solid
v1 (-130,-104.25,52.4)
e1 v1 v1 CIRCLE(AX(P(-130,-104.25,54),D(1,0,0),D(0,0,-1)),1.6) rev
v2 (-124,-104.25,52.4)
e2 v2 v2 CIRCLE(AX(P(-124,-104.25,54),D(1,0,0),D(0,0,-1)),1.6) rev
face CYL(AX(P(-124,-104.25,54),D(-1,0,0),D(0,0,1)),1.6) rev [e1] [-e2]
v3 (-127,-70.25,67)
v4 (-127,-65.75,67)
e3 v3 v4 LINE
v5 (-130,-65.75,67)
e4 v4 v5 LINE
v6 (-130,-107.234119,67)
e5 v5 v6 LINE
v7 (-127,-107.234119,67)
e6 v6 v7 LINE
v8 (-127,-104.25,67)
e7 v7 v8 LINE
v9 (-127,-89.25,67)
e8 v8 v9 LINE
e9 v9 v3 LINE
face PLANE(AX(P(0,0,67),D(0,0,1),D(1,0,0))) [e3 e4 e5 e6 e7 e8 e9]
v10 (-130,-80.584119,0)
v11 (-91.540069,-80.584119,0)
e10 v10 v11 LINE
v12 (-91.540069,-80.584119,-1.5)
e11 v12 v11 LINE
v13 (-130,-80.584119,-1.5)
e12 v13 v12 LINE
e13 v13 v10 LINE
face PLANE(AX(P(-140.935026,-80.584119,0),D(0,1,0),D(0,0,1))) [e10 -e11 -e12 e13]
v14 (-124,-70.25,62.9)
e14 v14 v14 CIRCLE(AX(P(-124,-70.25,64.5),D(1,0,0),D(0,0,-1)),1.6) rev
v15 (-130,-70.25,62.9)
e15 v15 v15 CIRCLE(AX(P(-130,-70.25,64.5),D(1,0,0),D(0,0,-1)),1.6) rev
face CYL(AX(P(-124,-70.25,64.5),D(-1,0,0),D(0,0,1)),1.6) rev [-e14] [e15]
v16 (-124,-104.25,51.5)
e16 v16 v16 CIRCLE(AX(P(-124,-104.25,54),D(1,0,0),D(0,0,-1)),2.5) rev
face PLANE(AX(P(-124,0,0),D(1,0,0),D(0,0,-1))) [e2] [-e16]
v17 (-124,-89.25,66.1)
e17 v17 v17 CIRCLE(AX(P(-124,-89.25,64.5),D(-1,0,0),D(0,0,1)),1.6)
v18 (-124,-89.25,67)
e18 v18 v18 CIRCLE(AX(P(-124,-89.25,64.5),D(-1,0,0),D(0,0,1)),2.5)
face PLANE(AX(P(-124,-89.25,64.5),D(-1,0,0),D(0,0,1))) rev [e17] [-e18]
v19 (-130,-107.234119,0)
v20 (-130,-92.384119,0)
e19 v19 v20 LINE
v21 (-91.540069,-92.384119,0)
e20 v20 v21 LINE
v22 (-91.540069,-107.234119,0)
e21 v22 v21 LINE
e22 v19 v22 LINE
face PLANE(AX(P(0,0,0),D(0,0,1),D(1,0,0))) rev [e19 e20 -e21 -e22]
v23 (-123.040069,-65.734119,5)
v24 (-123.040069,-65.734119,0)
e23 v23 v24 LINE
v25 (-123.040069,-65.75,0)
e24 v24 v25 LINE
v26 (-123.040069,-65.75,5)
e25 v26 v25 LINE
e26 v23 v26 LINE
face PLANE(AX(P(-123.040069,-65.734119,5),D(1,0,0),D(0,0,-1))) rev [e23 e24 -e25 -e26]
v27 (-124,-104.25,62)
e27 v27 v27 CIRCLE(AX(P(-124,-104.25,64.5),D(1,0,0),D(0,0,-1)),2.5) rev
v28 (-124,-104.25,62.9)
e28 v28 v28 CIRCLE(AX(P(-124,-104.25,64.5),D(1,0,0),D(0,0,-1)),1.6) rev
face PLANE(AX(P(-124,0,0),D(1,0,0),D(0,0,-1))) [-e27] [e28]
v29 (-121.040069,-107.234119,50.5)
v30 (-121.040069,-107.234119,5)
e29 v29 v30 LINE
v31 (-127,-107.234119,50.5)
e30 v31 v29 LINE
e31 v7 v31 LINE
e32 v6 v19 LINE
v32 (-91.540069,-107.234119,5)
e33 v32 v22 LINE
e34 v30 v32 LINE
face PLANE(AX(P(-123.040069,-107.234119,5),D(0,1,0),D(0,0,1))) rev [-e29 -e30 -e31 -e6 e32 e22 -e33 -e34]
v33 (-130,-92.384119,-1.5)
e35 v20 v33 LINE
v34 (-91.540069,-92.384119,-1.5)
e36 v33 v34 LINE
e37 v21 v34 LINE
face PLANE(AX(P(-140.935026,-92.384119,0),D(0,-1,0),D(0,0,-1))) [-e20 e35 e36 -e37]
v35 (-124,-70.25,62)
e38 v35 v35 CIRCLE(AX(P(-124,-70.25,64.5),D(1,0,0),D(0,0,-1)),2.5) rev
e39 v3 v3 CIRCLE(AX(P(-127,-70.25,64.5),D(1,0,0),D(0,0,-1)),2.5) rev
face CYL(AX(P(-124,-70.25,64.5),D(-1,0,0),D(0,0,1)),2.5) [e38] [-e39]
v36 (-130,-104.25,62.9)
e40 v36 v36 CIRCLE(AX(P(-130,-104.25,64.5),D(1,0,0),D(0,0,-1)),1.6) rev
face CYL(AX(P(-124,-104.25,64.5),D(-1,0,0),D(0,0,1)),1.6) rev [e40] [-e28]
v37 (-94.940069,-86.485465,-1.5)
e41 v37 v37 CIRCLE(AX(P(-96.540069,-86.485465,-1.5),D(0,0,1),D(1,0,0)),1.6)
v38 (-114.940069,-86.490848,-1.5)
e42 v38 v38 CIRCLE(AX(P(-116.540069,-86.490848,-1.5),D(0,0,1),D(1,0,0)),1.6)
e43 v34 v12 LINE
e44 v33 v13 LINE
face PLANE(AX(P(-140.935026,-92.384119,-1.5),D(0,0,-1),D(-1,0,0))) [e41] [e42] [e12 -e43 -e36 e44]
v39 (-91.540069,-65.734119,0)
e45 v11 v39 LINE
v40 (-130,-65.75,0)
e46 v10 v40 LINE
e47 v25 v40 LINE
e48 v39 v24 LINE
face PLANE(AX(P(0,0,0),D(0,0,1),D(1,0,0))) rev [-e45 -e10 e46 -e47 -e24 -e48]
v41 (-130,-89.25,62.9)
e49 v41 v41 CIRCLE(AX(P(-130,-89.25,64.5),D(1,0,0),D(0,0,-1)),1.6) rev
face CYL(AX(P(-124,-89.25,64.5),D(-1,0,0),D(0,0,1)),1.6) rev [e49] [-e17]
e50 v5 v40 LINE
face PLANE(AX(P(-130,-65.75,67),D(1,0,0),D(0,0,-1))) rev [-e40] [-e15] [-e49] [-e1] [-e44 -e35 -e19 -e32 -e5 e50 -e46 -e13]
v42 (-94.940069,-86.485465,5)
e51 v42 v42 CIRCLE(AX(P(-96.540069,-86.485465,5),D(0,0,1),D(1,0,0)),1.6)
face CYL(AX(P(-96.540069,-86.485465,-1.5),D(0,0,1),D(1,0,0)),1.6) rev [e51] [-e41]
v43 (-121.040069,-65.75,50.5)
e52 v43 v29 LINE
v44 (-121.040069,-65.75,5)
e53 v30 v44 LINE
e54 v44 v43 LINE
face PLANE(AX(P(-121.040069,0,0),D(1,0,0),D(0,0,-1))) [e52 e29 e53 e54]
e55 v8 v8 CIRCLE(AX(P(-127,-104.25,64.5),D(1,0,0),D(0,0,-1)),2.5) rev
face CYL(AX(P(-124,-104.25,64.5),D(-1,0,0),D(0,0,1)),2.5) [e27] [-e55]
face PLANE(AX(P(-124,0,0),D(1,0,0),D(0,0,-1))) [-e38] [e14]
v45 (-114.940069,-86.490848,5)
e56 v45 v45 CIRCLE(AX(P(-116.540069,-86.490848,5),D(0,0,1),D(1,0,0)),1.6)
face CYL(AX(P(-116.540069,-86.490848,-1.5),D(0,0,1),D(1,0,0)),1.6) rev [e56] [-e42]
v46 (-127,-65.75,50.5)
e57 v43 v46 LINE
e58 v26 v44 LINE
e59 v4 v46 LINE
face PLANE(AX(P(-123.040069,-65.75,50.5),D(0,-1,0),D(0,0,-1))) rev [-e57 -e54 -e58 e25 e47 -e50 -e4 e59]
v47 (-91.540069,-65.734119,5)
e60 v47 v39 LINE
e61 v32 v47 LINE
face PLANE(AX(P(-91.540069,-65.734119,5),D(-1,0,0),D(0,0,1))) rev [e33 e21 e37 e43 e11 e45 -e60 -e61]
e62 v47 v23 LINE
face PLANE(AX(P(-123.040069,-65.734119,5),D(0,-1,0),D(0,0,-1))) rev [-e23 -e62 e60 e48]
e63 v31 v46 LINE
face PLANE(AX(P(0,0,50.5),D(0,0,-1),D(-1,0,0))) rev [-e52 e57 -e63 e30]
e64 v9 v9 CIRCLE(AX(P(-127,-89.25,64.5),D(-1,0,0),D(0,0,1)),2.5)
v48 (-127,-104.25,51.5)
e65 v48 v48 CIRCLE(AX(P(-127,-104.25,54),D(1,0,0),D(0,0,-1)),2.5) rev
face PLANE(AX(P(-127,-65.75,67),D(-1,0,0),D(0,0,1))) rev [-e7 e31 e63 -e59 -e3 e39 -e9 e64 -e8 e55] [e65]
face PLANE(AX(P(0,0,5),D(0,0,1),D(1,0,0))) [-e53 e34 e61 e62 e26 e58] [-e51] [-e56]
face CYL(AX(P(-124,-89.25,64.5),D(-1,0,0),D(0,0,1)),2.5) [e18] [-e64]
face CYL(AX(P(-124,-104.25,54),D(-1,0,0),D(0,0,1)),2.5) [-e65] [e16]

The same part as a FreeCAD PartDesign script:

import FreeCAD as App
import Part
import Sketcher
Q = App.Units.Quantity


def add_polygon(sketch, points):
    """Adds a closed chain of lines whose ends are joined by coincident constraints."""
    first, n = sketch.GeometryCount, len(points)
    for a, b in zip(points, points[1:] + points[:1]):
        sketch.addGeometry(Part.LineSegment(App.Vector(*a, 0), App.Vector(*b, 0)), False)
    for i in range(n):
        sketch.addConstraint(Sketcher.Constraint("Coincident", first + i, 2, first + (i + 1) % n, 1))

doc = App.newDocument("Part")
params = doc.addObject("Spreadsheet::Sheet", "Params")
for row, (alias, value) in enumerate([
    ("sketch1_width", "31.5 mm"),
    ("sketch1_height", "41.5 mm"),
    ("pad1_length", "5 mm"),
    ("sketch2_width", "6 mm"),
    ("pad2_length", "50.5 mm"),
    ("sketch3_width", "3 mm"),
    ("pad3_length", "16.5 mm"),
    ("sketch4_height", "50.5 mm"),
    ("pad4_length", "2 mm"),
    ("sketch5_diameter", "5 mm"),
    ("sketch5_diameter2", "3.2 mm"),
    ("pad5_length", "3 mm"),
    ("sketch6_diameter", "3.2 mm"),
    ("sketch7_width", "11.8 mm"),
    ("sketch7_height", "1.5 mm"),
    ("pad6_length", "37.5 mm"),
    ("sketch8_diameter", "3.2 mm"),
    ("sketch9_width", "11.8 mm"),
    ("sketch9_height", "50.5 mm"),
    ("sketch9_height2", "1.5 mm"),
    ("sketch9_width2", "14.85 mm"),
    ("pad7_length", "0.959931 mm"),
], start=1):
    params.set(f"A{row}", alias)
    params.set(f"B{row}", "=" + value)
    params.setAlias(f"B{row}", alias)

body = doc.addObject("PartDesign::Body", "Body")

# Sketch on XY plane
sketch1 = body.newObject("Sketcher::SketchObject", "Sketch")
sketch1.AttachmentSupport = (doc.getObject("XY_Plane"), [""])
sketch1.MapMode = "FlatFace"
add_polygon(sketch1, [(-123.040069, -65.734119), (-123.040069, -107.234119), (-91.540069, -107.234119), (-91.540069, -65.734119)])  # lines 0-3
sketch1.addConstraint([
    Sketcher.Constraint("Vertical", 0),
    Sketcher.Constraint("Horizontal", 1),
    Sketcher.Constraint("Vertical", 2),
    Sketcher.Constraint("Horizontal", 3),
    Sketcher.Constraint("DistanceX", 1, 1, 1, 2, Q("31.5 mm")),
    Sketcher.Constraint("DistanceY", 0, 2, 0, 1, Q("41.5 mm")),
    Sketcher.Constraint("DistanceX", 0, 2, -1, 1, Q("123.040069 mm")),
    Sketcher.Constraint("DistanceY", 0, 2, -1, 1, Q("107.234119 mm")),
])
sketch1.setExpression("Constraints[8]", "Params.sketch1_width")
sketch1.setExpression("Constraints[9]", "Params.sketch1_height")
pad1 = body.newObject("PartDesign::Pad", "Pad")
pad1.Profile = sketch1
pad1.setExpression("Length", "Params.pad1_length")

# Sketch on XY plane
sketch2 = body.newObject("Sketcher::SketchObject", "Sketch001")
sketch2.AttachmentSupport = (doc.getObject("XY_Plane"), [""])
sketch2.MapMode = "FlatFace"
add_polygon(sketch2, [(-129.040069, -65.75), (-129.040069, -107.234119), (-123.040069, -107.234119), (-123.040069, -65.75)])  # lines 0-3
sketch2.addConstraint([
    Sketcher.Constraint("Vertical", 0),
    Sketcher.Constraint("Horizontal", 1),
    Sketcher.Constraint("Vertical", 2),
    Sketcher.Constraint("Horizontal", 3),
    Sketcher.Constraint("DistanceX", 1, 1, 1, 2, Q("6 mm")),
    Sketcher.Constraint("DistanceY", 2, 2, -1, 1, Q("65.75 mm")),
    Sketcher.Constraint("DistanceY", 0, 2, 0, 1, Q("41.484119 mm")),
    Sketcher.Constraint("DistanceX", 0, 2, -1, 1, Q("129.040069 mm")),
])
sketch2.setExpression("Constraints[8]", "Params.sketch2_width")
pad2 = body.newObject("PartDesign::Pad", "Pad001")
pad2.Profile = sketch2
pad2.setExpression("Length", "Params.pad2_length")

# Sketch on XY plane
sketch3 = body.newObject("Sketcher::SketchObject", "Sketch002")
sketch3.AttachmentSupport = (doc.getObject("XY_Plane"), [""])
sketch3.MapMode = "FlatFace"
sketch3.AttachmentOffset = App.Placement(App.Vector(0, 0, 50.5), App.Rotation())
add_polygon(sketch3, [(-130, -65.75), (-130, -107.234119), (-127, -107.234119), (-127, -65.75)])  # lines 0-3
sketch3.addConstraint([
    Sketcher.Constraint("Vertical", 0),
    Sketcher.Constraint("Horizontal", 1),
    Sketcher.Constraint("Vertical", 2),
    Sketcher.Constraint("Horizontal", 3),
    Sketcher.Constraint("DistanceX", 1, 1, 1, 2, Q("3 mm")),
    Sketcher.Constraint("DistanceX", 0, 2, -1, 1, Q("130 mm")),
    Sketcher.Constraint("DistanceY", 2, 2, -1, 1, Q("65.75 mm")),
    Sketcher.Constraint("DistanceY", 0, 2, 0, 1, Q("41.484119 mm")),
])
sketch3.setExpression("Constraints[8]", "Params.sketch3_width")
pad3 = body.newObject("PartDesign::Pad", "Pad002")
pad3.Profile = sketch3
pad3.setExpression("Length", "Params.pad3_length")

# Sketch on YZ plane
sketch4 = body.newObject("Sketcher::SketchObject", "Sketch003")
sketch4.AttachmentSupport = (doc.getObject("YZ_Plane"), [""])
sketch4.MapMode = "FlatFace"
sketch4.AttachmentOffset = App.Placement(App.Vector(0, 0, -123.040069), App.Rotation())
add_polygon(sketch4, [(-65.75, 50.5), (-107.234119, 50.5), (-107.234119, 0), (-65.75, 0)])  # lines 0-3
sketch4.addConstraint([
    Sketcher.Constraint("Horizontal", 0),
    Sketcher.Constraint("Vertical", 1),
    Sketcher.Constraint("Horizontal", 2),
    Sketcher.Constraint("Vertical", 3),
    Sketcher.Constraint("PointOnObject", 1, 2, -1),
    Sketcher.Constraint("DistanceY", 1, 2, 1, 1, Q("50.5 mm")),
    Sketcher.Constraint("DistanceX", 2, 2, -1, 1, Q("65.75 mm")),
    Sketcher.Constraint("DistanceX", 0, 2, 0, 1, Q("41.484119 mm")),
])
sketch4.setExpression("Constraints[9]", "Params.sketch4_height")
pad4 = body.newObject("PartDesign::Pad", "Pad003")
pad4.Profile = sketch4
pad4.setExpression("Length", "Params.pad4_length")

# Sketch on YZ plane
sketch5 = body.newObject("Sketcher::SketchObject", "Sketch004")
sketch5.AttachmentSupport = (doc.getObject("YZ_Plane"), [""])
sketch5.MapMode = "FlatFace"
sketch5.AttachmentOffset = App.Placement(App.Vector(0, 0, -127), App.Rotation())
sketch5.addGeometry([
    Part.Circle(App.Vector(-104.25, 54, 0), App.Vector(0, 0, 1), 2.5),  # 0
    Part.Circle(App.Vector(-104.25, 54, 0), App.Vector(0, 0, 1), 1.6),  # 1
    Part.Circle(App.Vector(-104.25, 64.5, 0), App.Vector(0, 0, 1), 2.5),  # 2
    Part.Circle(App.Vector(-104.25, 64.5, 0), App.Vector(0, 0, 1), 1.6),  # 3
    Part.Circle(App.Vector(-89.25, 64.5, 0), App.Vector(0, 0, 1), 2.5),  # 4
    Part.Circle(App.Vector(-89.25, 64.5, 0), App.Vector(0, 0, 1), 1.6),  # 5
    Part.Circle(App.Vector(-70.25, 64.5, 0), App.Vector(0, 0, 1), 2.5),  # 6
    Part.Circle(App.Vector(-70.25, 64.5, 0), App.Vector(0, 0, 1), 1.6),  # 7
], False)
sketch5.addConstraint([
    Sketcher.Constraint("Coincident", 1, 3, 0, 3),
    Sketcher.Constraint("Coincident", 3, 3, 2, 3),
    Sketcher.Constraint("Coincident", 5, 3, 4, 3),
    Sketcher.Constraint("Coincident", 7, 3, 6, 3),
    Sketcher.Constraint("Equal", 0, 2),
    Sketcher.Constraint("Equal", 1, 3),
    Sketcher.Constraint("Equal", 2, 4),
    Sketcher.Constraint("Equal", 3, 5),
    Sketcher.Constraint("Equal", 4, 6),
    Sketcher.Constraint("Equal", 5, 7),
    Sketcher.Constraint("Horizontal", 3, 3, 4, 3),
    Sketcher.Constraint("Horizontal", 5, 3, 6, 3),
    Sketcher.Constraint("Vertical", 1, 3, 2, 3),
    Sketcher.Constraint("Diameter", 0, Q("5 mm")),
    Sketcher.Constraint("Diameter", 1, Q("3.2 mm")),
    Sketcher.Constraint("DistanceY", -1, 1, 0, 3, Q("54 mm")),
    Sketcher.Constraint("DistanceX", 2, 3, 4, 3, Q("15 mm")),
    Sketcher.Constraint("DistanceX", 4, 3, 6, 3, Q("19 mm")),
    Sketcher.Constraint("DistanceY", -1, 1, 2, 3, Q("64.5 mm")),
    Sketcher.Constraint("DistanceX", 0, 3, -1, 1, Q("104.25 mm")),
])
sketch5.setExpression("Constraints[13]", "Params.sketch5_diameter")
sketch5.setExpression("Constraints[14]", "Params.sketch5_diameter2")
pad5 = body.newObject("PartDesign::Pad", "Pad004")
pad5.Profile = sketch5
pad5.setExpression("Length", "Params.pad5_length")

# Sketch on YZ plane
sketch6 = body.newObject("Sketcher::SketchObject", "Sketch005")
sketch6.AttachmentSupport = (doc.getObject("YZ_Plane"), [""])
sketch6.MapMode = "FlatFace"
sketch6.AttachmentOffset = App.Placement(App.Vector(0, 0, -127), App.Rotation())
sketch6.addGeometry([
    Part.Circle(App.Vector(-104.25, 64.5, 0), App.Vector(0, 0, 1), 1.6),
    Part.Circle(App.Vector(-89.25, 64.5, 0), App.Vector(0, 0, 1), 1.6),
    Part.Circle(App.Vector(-70.25, 64.5, 0), App.Vector(0, 0, 1), 1.6),
    Part.Circle(App.Vector(-104.25, 54, 0), App.Vector(0, 0, 1), 1.6),
], False)
sketch6.addConstraint([
    Sketcher.Constraint("Equal", 0, 1),
    Sketcher.Constraint("Equal", 1, 2),
    Sketcher.Constraint("Equal", 2, 3),
    Sketcher.Constraint("Horizontal", 0, 3, 1, 3),
    Sketcher.Constraint("Horizontal", 1, 3, 2, 3),
    Sketcher.Constraint("Vertical", 0, 3, 3, 3),
    Sketcher.Constraint("Diameter", 0, Q("3.2 mm")),
    Sketcher.Constraint("DistanceY", -1, 1, 3, 3, Q("54 mm")),
    Sketcher.Constraint("DistanceX", 0, 3, 1, 3, Q("15 mm")),
    Sketcher.Constraint("DistanceX", 1, 3, 2, 3, Q("19 mm")),
    Sketcher.Constraint("DistanceY", -1, 1, 0, 3, Q("64.5 mm")),
    Sketcher.Constraint("DistanceX", 0, 3, -1, 1, Q("104.25 mm")),
])
sketch6.setExpression("Constraints[6]", "Params.sketch6_diameter")
pocket1 = body.newObject("PartDesign::Pocket", "Pocket")
pocket1.Profile = sketch6
pocket1.Type = "ThroughAll"
pocket1.Midplane = True

# Sketch on YZ plane
sketch7 = body.newObject("Sketcher::SketchObject", "Sketch006")
sketch7.AttachmentSupport = (doc.getObject("YZ_Plane"), [""])
sketch7.MapMode = "FlatFace"
sketch7.AttachmentOffset = App.Placement(App.Vector(0, 0, -91.540069), App.Rotation())
add_polygon(sketch7, [(-80.584119, 0), (-92.384119, 0), (-92.384119, -1.5), (-80.584119, -1.5)])  # lines 0-3
sketch7.addConstraint([
    Sketcher.Constraint("Horizontal", 0),
    Sketcher.Constraint("Vertical", 1),
    Sketcher.Constraint("Horizontal", 2),
    Sketcher.Constraint("Vertical", 3),
    Sketcher.Constraint("PointOnObject", 0, 2, -1),
    Sketcher.Constraint("DistanceX", 0, 2, 0, 1, Q("11.8 mm")),
    Sketcher.Constraint("DistanceY", 1, 2, 1, 1, Q("1.5 mm")),
    Sketcher.Constraint("DistanceX", 0, 2, -1, 1, Q("92.384119 mm")),
])
sketch7.setExpression("Constraints[9]", "Params.sketch7_width")
sketch7.setExpression("Constraints[10]", "Params.sketch7_height")
pad6 = body.newObject("PartDesign::Pad", "Pad005")
pad6.Profile = sketch7
pad6.setExpression("Length", "Params.pad6_length")
pad6.Reversed = True

# Sketch on XY plane
sketch8 = body.newObject("Sketcher::SketchObject", "Sketch007")
sketch8.AttachmentSupport = (doc.getObject("XY_Plane"), [""])
sketch8.MapMode = "FlatFace"
sketch8.AttachmentOffset = App.Placement(App.Vector(0, 0, 5), App.Rotation())
sketch8.addGeometry([
    Part.Circle(App.Vector(-116.540069, -86.490848, 0), App.Vector(0, 0, 1), 1.6),
    Part.Circle(App.Vector(-96.540069, -86.485465, 0), App.Vector(0, 0, 1), 1.6),
], False)
sketch8.addConstraint([
    Sketcher.Constraint("Equal", 0, 1),
    Sketcher.Constraint("Diameter", 0, Q("3.2 mm")),
    Sketcher.Constraint("DistanceX", 0, 3, 1, 3, Q("20 mm")),
    Sketcher.Constraint("DistanceX", 0, 3, -1, 1, Q("116.540069 mm")),
    Sketcher.Constraint("DistanceY", 0, 3, -1, 1, Q("86.490848 mm")),
    Sketcher.Constraint("DistanceY", 1, 3, -1, 1, Q("86.485465 mm")),
])
sketch8.setExpression("Constraints[1]", "Params.sketch8_diameter")
pocket2 = body.newObject("PartDesign::Pocket", "Pocket001")
pocket2.Profile = sketch8
pocket2.Type = "ThroughAll"

# Sketch on YZ plane
sketch9 = body.newObject("Sketcher::SketchObject", "Sketch008")
sketch9.AttachmentSupport = (doc.getObject("YZ_Plane"), [""])
sketch9.MapMode = "FlatFace"
sketch9.AttachmentOffset = App.Placement(App.Vector(0, 0, -129.040069), App.Rotation())
add_polygon(sketch9, [(-65.75, 50.5), (-65.75, 0), (-80.584119, 0), (-80.584119, -1.5), (-92.384119, -1.5), (-92.384119, 0), (-107.234119, 0), (-107.234119, 50.5)])  # lines 0-7
sketch9.addConstraint([
    Sketcher.Constraint("Vertical", 0),
    Sketcher.Constraint("Horizontal", 1),
    Sketcher.Constraint("Vertical", 2),
    Sketcher.Constraint("Horizontal", 3),
    Sketcher.Constraint("Vertical", 4),
    Sketcher.Constraint("Horizontal", 5),
    Sketcher.Constraint("Vertical", 6),
    Sketcher.Constraint("Horizontal", 7),
    Sketcher.Constraint("PointOnObject", 0, 2, -1),
    Sketcher.Constraint("PointOnObject", 4, 2, -1),
    Sketcher.Constraint("DistanceX", 3, 2, 3, 1, Q("11.8 mm")),
    Sketcher.Constraint("DistanceY", 0, 2, 0, 1, Q("50.5 mm")),
    Sketcher.Constraint("DistanceY", 2, 2, 2, 1, Q("1.5 mm")),
    Sketcher.Constraint("DistanceX", 5, 2, 5, 1, Q("14.85 mm")),
    Sketcher.Constraint("DistanceX", 0, 2, -1, 1, Q("65.75 mm")),
    Sketcher.Constraint("DistanceX", 1, 2, 1, 1, Q("14.834119 mm")),
])
sketch9.setExpression("Constraints[18]", "Params.sketch9_width")
sketch9.setExpression("Constraints[19]", "Params.sketch9_height")
sketch9.setExpression("Constraints[20]", "Params.sketch9_height2")
sketch9.setExpression("Constraints[21]", "Params.sketch9_width2")
pad7 = body.newObject("PartDesign::Pad", "Pad006")
pad7.Profile = sketch9
pad7.setExpression("Length", "Params.pad7_length")
pad7.Reversed = True

doc.recompute()
